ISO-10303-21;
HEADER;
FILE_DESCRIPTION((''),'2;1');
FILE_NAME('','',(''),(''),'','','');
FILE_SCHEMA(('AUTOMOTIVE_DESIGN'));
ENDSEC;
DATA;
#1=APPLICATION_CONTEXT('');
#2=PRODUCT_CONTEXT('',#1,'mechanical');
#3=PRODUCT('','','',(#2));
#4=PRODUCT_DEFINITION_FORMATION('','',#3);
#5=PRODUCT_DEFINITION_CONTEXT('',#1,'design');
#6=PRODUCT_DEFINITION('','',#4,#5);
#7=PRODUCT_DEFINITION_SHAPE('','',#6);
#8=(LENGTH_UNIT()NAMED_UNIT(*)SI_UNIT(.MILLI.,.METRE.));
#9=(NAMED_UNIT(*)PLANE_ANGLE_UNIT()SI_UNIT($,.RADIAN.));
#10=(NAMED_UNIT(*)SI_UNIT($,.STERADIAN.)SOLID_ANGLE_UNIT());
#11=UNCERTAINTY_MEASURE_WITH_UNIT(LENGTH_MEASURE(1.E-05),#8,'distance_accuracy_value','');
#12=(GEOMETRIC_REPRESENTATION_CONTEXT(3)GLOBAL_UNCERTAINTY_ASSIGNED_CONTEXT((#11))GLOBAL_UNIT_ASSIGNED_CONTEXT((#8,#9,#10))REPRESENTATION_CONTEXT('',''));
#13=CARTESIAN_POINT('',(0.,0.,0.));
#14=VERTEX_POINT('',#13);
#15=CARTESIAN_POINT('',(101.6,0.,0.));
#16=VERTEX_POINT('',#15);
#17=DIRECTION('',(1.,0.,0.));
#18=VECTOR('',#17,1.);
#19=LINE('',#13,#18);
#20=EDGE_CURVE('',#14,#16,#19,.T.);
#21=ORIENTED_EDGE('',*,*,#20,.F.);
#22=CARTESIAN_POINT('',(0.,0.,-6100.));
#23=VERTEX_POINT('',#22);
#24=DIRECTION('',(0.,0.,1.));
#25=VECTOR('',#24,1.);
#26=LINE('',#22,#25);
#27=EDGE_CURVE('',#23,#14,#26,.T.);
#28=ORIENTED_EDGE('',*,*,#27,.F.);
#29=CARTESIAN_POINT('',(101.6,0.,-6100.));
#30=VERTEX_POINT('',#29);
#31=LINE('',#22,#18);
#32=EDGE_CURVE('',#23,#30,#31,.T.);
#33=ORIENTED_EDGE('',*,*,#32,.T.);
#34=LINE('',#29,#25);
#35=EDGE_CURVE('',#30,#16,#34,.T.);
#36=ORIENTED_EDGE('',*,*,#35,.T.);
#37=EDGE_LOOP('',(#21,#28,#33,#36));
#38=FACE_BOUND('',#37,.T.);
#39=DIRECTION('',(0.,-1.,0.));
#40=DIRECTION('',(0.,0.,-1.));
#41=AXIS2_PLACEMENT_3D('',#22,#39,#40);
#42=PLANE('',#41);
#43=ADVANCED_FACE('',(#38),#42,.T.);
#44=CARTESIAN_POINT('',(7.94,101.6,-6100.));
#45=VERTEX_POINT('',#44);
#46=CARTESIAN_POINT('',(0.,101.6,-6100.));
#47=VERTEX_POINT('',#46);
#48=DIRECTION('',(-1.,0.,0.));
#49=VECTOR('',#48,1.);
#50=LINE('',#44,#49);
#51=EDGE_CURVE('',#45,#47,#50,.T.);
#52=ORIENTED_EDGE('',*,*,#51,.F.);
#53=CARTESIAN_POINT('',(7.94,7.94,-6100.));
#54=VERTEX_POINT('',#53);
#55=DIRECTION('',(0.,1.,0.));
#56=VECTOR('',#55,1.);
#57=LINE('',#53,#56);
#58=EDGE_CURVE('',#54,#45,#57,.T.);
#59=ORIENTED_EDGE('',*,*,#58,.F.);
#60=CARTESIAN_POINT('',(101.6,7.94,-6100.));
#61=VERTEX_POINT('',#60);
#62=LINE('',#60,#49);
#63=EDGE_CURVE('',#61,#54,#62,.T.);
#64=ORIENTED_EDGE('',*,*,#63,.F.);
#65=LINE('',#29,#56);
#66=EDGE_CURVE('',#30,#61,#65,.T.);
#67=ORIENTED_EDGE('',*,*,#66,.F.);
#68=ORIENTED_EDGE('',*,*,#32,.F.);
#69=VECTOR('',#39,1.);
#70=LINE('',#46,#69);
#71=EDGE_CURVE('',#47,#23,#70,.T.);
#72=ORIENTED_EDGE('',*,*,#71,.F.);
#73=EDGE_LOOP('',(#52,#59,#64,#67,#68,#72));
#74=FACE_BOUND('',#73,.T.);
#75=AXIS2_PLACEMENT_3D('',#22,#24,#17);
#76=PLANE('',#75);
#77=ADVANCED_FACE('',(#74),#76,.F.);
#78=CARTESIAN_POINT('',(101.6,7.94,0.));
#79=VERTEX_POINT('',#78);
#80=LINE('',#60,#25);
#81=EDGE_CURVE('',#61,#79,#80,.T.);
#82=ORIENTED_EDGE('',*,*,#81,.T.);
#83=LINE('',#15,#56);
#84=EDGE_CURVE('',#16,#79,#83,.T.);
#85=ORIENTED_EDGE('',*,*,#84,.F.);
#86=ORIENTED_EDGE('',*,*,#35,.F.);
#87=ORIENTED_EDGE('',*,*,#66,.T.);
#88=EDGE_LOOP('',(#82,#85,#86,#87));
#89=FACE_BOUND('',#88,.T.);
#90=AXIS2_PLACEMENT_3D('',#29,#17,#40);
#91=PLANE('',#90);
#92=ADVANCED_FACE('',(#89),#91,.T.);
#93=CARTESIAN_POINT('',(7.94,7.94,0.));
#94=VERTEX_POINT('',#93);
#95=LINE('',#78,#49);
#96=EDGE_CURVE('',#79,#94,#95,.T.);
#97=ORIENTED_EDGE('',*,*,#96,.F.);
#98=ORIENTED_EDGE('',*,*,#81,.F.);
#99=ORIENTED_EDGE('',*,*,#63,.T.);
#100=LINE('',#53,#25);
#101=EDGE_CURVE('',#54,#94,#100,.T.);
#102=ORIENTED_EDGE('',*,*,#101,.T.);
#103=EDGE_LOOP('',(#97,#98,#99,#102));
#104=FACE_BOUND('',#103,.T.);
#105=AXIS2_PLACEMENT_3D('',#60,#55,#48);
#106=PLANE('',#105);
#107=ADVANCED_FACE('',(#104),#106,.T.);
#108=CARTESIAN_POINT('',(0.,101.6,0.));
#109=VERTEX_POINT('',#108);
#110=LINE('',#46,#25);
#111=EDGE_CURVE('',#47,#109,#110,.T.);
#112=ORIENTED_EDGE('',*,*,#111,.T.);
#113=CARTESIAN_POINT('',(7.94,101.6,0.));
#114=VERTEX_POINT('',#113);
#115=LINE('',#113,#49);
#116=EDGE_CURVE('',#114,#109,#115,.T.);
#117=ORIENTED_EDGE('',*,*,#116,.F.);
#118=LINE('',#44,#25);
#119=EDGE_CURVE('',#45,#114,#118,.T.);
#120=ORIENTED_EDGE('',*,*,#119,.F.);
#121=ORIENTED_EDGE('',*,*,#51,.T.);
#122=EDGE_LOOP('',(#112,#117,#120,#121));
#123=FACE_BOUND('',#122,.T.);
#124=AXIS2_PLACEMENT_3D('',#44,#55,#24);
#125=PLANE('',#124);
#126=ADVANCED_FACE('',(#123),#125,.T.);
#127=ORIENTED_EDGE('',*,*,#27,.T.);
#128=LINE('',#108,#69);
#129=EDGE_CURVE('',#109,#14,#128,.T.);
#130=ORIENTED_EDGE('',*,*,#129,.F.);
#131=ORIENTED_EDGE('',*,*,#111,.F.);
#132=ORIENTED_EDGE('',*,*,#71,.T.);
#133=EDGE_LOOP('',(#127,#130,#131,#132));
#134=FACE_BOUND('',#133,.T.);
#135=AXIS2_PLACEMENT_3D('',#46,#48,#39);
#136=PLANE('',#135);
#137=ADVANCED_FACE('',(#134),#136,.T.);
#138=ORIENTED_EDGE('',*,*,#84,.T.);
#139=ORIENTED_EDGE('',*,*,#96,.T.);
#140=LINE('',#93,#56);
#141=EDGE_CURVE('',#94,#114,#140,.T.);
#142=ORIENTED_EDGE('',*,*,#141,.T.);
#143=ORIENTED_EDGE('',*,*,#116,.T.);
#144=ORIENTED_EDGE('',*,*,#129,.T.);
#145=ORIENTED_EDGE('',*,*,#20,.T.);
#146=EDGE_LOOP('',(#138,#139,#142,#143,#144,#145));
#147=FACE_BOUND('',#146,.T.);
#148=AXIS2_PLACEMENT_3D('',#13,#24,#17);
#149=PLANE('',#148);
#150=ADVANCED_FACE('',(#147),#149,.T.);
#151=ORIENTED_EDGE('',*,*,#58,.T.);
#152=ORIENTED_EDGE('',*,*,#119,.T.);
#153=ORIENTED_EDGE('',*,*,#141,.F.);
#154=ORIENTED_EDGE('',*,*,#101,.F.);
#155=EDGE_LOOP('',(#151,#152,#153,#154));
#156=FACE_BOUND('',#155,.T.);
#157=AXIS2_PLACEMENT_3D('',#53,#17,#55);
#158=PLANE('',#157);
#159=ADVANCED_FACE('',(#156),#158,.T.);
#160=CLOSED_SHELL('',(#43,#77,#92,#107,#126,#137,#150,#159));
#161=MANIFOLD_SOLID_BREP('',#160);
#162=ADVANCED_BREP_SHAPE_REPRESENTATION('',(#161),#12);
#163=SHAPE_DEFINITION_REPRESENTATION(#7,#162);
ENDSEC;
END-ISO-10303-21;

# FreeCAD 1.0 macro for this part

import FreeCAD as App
import Part
import Sketcher

doc = App.newDocument("Part")
body = doc.addObject("PartDesign::Body", "Body")

sketch1 = body.newObject("Sketcher::SketchObject", "Sketch")
sketch1.AttachmentSupport = (doc.getObject("XY_Plane"), [""])
sketch1.MapMode = "FlatFace"
sketch1.addGeometry(Part.LineSegment(App.Vector(0, 102, 0), App.Vector(0, 0, 0)), False)
sketch1.addGeometry(Part.LineSegment(App.Vector(0, 0, 0), App.Vector(102, 0, 0)), False)
sketch1.addGeometry(Part.LineSegment(App.Vector(102, 0, 0), App.Vector(102, 8, 0)), False)
sketch1.addGeometry(Part.LineSegment(App.Vector(102, 8, 0), App.Vector(8, 8, 0)), False)
sketch1.addGeometry(Part.LineSegment(App.Vector(8, 8, 0), App.Vector(8, 102, 0)), False)
sketch1.addGeometry(Part.LineSegment(App.Vector(8, 102, 0), App.Vector(0, 102, 0)), False)
sketch1.addConstraint(Sketcher.Constraint("Coincident", 0, 2, 1, 1))
sketch1.addConstraint(Sketcher.Constraint("Coincident", 1, 2, 2, 1))
sketch1.addConstraint(Sketcher.Constraint("Coincident", 2, 2, 3, 1))
sketch1.addConstraint(Sketcher.Constraint("Coincident", 3, 2, 4, 1))
sketch1.addConstraint(Sketcher.Constraint("Coincident", 4, 2, 5, 1))
sketch1.addConstraint(Sketcher.Constraint("Coincident", 5, 2, 0, 1))
sketch1.addConstraint(Sketcher.Constraint("Vertical", 0))
sketch1.addConstraint(Sketcher.Constraint("Horizontal", 1))
sketch1.addConstraint(Sketcher.Constraint("Vertical", 2))
sketch1.addConstraint(Sketcher.Constraint("Horizontal", 3))
sketch1.addConstraint(Sketcher.Constraint("Vertical", 4))
sketch1.addConstraint(Sketcher.Constraint("Horizontal", 5))
sketch1.addConstraint(Sketcher.Constraint("Coincident", 0, 2, -1, 1))
sketch1.addConstraint(Sketcher.Constraint("Equal", 1, 0))
sketch1.addConstraint(Sketcher.Constraint("Equal", 5, 2))
sketch1.addConstraint(Sketcher.Constraint("DistanceX", 1, 1, 1, 2, 101.6))
sketch1.addConstraint(Sketcher.Constraint("DistanceX", 3, 2, 3, 1, 93.66))
pad1 = body.newObject("PartDesign::Pad", "Pad")
pad1.Profile = sketch1
pad1.Length = 6100
pad1.Reversed = True

doc.recompute()
